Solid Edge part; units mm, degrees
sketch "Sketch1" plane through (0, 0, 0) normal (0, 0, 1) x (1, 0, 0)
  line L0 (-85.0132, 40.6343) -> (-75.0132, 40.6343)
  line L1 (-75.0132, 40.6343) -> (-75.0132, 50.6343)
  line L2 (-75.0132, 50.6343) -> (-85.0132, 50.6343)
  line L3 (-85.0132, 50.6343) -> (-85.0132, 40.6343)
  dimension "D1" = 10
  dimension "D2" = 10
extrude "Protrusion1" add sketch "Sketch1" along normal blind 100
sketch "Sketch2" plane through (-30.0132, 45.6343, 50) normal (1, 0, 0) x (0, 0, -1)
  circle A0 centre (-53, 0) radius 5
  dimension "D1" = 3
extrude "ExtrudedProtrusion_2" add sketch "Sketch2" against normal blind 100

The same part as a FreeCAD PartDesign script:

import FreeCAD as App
import Part
import Sketcher
Q = App.Units.Quantity


def add_polygon(sketch, points):
    """Adds a closed chain of lines whose ends are joined by coincident constraints."""
    first, n = sketch.GeometryCount, len(points)
    for a, b in zip(points, points[1:] + points[:1]):
        sketch.addGeometry(Part.LineSegment(App.Vector(*a, 0), App.Vector(*b, 0)), False)
    for i in range(n):
        sketch.addConstraint(Sketcher.Constraint("Coincident", first + i, 2, first + (i + 1) % n, 1))

doc = App.newDocument("Part")
params = doc.addObject("Spreadsheet::Sheet", "Params")
for row, (alias, value) in enumerate([
    ("pad1_length", "3.9370079 in"),
    ("pad2_length", "3.9370079 in"),
], start=1):
    params.set(f"A{row}", alias)
    params.set(f"B{row}", "=" + value)
    params.setAlias(f"B{row}", alias)

body = doc.addObject("PartDesign::Body", "Body")

sketch1 = doc.addObject("Sketcher::SketchObject", "Sketch")
body.addObject(sketch1)
sketch1.AttachmentSupport = (doc.XY_Plane, [""])
sketch1.MapMode = "FlatFace"
add_polygon(sketch1, [(-85, 51), (-85, 41), (-75, 41), (-75, 51)])
sketch1.addConstraint([
    Sketcher.Constraint("Vertical", 0),
    Sketcher.Constraint("Horizontal", 1),
    Sketcher.Constraint("Vertical", 2),
    Sketcher.Constraint("Horizontal", 3),
    Sketcher.Constraint("Equal", 3, 0),
    Sketcher.Constraint("DistanceX", 1, 2, -1, 1, Q("75.0132 mm")),
    Sketcher.Constraint("DistanceX", 1, 1, 1, 2, Q("0.3937 in")),
    Sketcher.Constraint("DistanceY", -1, 1, 0, 2, Q("40.6343 mm")),
])
pad1 = doc.addObject("PartDesign::Pad", "Pad")
body.addObject(pad1)
pad1.Profile = sketch1
pad1.setExpression("Length", "Params.pad1_length")

sketch2 = doc.addObject("Sketcher::SketchObject", "Sketch001")
body.addObject(sketch2)
sketch2.AttachmentSupport = (doc.YZ_Plane, [""])
sketch2.MapMode = "FlatFace"
sketch2.AttachmentOffset = App.Placement(App.Vector(0, 0, -30.0132), App.Rotation())
sketch2.addGeometry(Part.Circle(App.Vector(46, 103, 0), App.Vector(0, 0, 1), 5), False)
sketch2.addConstraint([
    Sketcher.Constraint("Diameter", 0, Q("0.3937 in")),
    Sketcher.Constraint("DistanceX", -1, 1, 0, 3, Q("45.6343 mm")),
    Sketcher.Constraint("DistanceY", -1, 1, 0, 3, Q("103 mm")),
])
pad2 = doc.addObject("PartDesign::Pad", "Pad001")
body.addObject(pad2)
pad2.Profile = sketch2
pad2.setExpression("Length", "Params.pad2_length")
pad2.Reversed = True

doc.recompute()
